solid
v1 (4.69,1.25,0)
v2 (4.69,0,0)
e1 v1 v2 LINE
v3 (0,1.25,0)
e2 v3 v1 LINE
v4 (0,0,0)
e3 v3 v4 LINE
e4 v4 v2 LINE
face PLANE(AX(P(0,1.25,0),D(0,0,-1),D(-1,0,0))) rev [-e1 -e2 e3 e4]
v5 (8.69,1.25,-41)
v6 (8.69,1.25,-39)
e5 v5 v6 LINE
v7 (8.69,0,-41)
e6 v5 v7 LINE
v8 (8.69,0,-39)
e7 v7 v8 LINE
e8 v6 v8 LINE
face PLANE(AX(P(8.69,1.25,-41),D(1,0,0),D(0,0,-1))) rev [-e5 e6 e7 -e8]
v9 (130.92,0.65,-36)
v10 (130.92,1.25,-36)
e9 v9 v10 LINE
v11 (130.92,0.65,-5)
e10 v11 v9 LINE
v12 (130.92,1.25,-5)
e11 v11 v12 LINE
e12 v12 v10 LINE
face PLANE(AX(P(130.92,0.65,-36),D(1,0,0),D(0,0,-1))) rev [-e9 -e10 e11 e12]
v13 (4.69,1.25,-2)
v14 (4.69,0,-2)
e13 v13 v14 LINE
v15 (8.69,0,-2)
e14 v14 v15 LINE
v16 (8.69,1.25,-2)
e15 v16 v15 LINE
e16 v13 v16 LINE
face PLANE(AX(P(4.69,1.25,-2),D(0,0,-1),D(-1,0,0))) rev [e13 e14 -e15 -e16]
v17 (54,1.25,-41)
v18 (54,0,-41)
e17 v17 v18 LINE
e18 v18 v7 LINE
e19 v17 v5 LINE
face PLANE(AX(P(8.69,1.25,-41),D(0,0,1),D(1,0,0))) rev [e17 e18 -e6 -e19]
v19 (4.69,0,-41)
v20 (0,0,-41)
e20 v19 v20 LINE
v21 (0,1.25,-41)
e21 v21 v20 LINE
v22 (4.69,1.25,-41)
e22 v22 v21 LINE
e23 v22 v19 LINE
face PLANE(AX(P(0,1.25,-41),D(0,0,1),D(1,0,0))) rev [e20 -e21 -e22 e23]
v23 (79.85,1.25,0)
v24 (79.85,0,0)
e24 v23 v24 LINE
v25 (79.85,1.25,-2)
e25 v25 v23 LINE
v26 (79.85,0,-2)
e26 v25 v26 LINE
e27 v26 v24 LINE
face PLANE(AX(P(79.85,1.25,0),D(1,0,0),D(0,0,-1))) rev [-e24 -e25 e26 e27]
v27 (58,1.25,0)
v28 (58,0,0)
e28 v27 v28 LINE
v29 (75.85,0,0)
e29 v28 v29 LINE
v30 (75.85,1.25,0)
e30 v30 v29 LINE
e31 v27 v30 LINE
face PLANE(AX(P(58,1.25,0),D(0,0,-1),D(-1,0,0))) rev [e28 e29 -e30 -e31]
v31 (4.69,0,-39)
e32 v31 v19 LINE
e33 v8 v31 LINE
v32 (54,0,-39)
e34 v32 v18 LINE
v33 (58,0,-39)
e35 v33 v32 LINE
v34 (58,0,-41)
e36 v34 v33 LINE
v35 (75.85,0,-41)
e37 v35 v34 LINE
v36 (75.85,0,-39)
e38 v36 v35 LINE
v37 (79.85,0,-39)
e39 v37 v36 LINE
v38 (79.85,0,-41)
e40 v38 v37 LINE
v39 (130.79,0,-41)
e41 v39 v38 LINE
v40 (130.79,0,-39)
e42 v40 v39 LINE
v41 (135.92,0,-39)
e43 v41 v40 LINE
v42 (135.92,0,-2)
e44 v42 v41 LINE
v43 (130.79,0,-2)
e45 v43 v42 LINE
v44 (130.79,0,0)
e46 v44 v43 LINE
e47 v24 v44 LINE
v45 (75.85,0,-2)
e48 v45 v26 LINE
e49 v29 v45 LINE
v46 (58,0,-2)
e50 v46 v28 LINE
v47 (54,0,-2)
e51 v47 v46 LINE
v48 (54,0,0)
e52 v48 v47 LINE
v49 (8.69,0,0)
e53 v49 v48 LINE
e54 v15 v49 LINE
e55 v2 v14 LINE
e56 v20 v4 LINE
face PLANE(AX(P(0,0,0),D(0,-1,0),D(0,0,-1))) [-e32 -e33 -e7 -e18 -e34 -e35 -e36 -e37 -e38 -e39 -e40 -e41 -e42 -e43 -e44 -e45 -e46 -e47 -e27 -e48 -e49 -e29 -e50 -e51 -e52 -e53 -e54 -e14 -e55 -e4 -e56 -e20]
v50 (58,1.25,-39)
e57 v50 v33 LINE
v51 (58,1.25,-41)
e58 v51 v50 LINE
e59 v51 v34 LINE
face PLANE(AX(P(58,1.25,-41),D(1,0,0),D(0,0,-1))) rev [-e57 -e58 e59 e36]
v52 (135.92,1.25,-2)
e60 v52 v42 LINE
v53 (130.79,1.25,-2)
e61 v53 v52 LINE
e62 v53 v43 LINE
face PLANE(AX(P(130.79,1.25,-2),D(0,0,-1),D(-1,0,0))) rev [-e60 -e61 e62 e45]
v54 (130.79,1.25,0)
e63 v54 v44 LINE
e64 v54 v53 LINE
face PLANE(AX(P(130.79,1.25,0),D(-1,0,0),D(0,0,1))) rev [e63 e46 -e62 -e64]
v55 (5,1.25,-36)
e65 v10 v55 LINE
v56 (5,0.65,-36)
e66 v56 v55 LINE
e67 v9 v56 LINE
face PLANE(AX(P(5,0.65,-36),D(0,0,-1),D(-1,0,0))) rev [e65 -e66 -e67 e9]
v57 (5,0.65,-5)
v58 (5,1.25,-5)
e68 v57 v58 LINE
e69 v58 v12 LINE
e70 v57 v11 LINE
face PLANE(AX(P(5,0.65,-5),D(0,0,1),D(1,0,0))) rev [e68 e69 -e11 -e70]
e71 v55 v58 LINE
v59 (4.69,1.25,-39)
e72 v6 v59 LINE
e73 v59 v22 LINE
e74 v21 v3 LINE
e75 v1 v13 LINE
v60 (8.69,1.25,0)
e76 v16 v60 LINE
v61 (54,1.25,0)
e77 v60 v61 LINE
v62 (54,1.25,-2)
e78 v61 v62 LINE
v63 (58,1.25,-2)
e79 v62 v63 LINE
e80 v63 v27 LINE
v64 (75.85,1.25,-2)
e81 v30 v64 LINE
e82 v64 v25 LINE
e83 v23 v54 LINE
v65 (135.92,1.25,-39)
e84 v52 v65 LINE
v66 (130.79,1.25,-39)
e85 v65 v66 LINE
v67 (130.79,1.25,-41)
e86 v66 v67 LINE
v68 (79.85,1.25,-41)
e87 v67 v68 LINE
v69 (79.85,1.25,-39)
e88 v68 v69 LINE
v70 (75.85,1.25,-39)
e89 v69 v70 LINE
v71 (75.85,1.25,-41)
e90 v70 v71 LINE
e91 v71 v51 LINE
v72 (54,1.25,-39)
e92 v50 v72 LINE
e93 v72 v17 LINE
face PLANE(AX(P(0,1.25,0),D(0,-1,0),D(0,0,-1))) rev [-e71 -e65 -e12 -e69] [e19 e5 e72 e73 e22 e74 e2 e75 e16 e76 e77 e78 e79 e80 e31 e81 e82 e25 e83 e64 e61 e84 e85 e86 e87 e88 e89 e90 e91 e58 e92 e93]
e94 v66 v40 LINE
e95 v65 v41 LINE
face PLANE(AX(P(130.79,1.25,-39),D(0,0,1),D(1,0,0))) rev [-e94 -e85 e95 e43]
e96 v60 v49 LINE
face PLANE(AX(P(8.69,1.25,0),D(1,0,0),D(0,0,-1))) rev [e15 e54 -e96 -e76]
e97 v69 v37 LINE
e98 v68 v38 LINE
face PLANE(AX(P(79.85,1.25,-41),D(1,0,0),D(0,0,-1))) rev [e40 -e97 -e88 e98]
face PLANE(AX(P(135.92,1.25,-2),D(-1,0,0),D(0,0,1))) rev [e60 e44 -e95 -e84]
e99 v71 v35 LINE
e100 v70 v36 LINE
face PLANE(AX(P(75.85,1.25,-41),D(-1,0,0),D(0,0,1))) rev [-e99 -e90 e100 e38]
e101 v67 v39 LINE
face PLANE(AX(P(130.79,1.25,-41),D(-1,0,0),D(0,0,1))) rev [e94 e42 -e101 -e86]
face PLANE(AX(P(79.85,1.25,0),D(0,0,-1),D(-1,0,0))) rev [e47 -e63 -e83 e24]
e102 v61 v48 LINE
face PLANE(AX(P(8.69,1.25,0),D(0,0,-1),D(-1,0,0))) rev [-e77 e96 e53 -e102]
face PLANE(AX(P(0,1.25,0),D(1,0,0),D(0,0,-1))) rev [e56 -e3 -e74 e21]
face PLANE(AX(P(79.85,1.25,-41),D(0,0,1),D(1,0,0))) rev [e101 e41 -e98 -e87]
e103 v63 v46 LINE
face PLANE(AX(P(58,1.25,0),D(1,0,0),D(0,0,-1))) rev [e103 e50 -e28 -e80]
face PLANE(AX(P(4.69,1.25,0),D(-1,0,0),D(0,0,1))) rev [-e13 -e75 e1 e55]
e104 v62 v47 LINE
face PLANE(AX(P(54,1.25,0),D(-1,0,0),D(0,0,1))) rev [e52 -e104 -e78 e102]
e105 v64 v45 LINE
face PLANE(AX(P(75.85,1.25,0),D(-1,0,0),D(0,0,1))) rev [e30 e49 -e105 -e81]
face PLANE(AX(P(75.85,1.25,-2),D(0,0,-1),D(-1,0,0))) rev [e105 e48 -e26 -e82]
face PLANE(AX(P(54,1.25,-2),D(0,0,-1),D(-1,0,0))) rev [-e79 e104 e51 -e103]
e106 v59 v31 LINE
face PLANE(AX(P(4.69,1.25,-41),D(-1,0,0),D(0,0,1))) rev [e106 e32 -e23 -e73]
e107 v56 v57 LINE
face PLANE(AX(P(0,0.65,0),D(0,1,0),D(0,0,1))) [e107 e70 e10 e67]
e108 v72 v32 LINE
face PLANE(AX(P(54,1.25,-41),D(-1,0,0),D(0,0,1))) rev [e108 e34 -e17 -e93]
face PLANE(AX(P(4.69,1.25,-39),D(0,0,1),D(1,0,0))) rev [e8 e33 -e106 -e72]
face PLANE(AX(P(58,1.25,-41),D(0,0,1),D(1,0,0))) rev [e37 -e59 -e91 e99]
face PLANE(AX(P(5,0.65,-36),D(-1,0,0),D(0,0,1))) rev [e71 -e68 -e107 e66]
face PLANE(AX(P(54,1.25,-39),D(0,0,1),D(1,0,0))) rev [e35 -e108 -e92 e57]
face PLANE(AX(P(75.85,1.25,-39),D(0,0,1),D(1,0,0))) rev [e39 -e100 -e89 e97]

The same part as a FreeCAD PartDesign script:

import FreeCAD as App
import Part
import Sketcher

doc = App.newDocument("Part")
body = doc.addObject("PartDesign::Body", "Body")

sketch1 = body.newObject("Sketcher::SketchObject", "Sketch")
sketch1.AttachmentSupport = (doc.getObject("XZ_Plane"), [""])
sketch1.MapMode = "FlatFace"
sketch1.addGeometry([
    Part.LineSegment(App.Vector(8.7, 0, 0), App.Vector(54, 0, 0)),
    Part.LineSegment(App.Vector(54, 0, 0), App.Vector(54, -2, 0)),
    Part.LineSegment(App.Vector(54, -2, 0), App.Vector(58, -2, 0)),
    Part.LineSegment(App.Vector(58, -2, 0), App.Vector(58, 0, 0)),
    Part.LineSegment(App.Vector(58, 0, 0), App.Vector(75.8, 0, 0)),
    Part.LineSegment(App.Vector(75.8, 0, 0), App.Vector(75.8, -2, 0)),
    Part.LineSegment(App.Vector(75.8, -2, 0), App.Vector(79.8, -2, 0)),
    Part.LineSegment(App.Vector(79.8, -2, 0), App.Vector(79.8, 0, 0)),
    Part.LineSegment(App.Vector(79.8, 0, 0), App.Vector(130.8, 0, 0)),
    Part.LineSegment(App.Vector(130.8, 0, 0), App.Vector(130.8, -2, 0)),
    Part.LineSegment(App.Vector(130.8, -2, 0), App.Vector(135.9, -2, 0)),
    Part.LineSegment(App.Vector(135.9, -2, 0), App.Vector(135.9, -39, 0)),
    Part.LineSegment(App.Vector(135.9, -39, 0), App.Vector(130.8, -39, 0)),
    Part.LineSegment(App.Vector(130.8, -39, 0), App.Vector(130.8, -41, 0)),
    Part.LineSegment(App.Vector(130.8, -41, 0), App.Vector(79.8, -41, 0)),
    Part.LineSegment(App.Vector(79.8, -41, 0), App.Vector(79.8, -39, 0)),
    Part.LineSegment(App.Vector(79.8, -39, 0), App.Vector(75.8, -39, 0)),
    Part.LineSegment(App.Vector(75.8, -39, 0), App.Vector(75.8, -41, 0)),
    Part.LineSegment(App.Vector(75.8, -41, 0), App.Vector(58, -41, 0)),
    Part.LineSegment(App.Vector(58, -41, 0), App.Vector(58, -39, 0)),
    Part.LineSegment(App.Vector(58, -39, 0), App.Vector(54, -39, 0)),
    Part.LineSegment(App.Vector(54, -39, 0), App.Vector(54, -41, 0)),
    Part.LineSegment(App.Vector(54, -41, 0), App.Vector(8.7, -41, 0)),
    Part.LineSegment(App.Vector(8.7, -41, 0), App.Vector(8.7, -39, 0)),
    Part.LineSegment(App.Vector(8.7, -39, 0), App.Vector(4.7, -39, 0)),
    Part.LineSegment(App.Vector(4.7, -39, 0), App.Vector(4.7, -41, 0)),
    Part.LineSegment(App.Vector(4.7, -41, 0), App.Vector(0, -41, 0)),
    Part.LineSegment(App.Vector(0, -41, 0), App.Vector(0, 0, 0)),
    Part.LineSegment(App.Vector(0, 0, 0), App.Vector(4.7, 0, 0)),
    Part.LineSegment(App.Vector(4.7, 0, 0), App.Vector(4.7, -2, 0)),
    Part.LineSegment(App.Vector(4.7, -2, 0), App.Vector(8.7, -2, 0)),
    Part.LineSegment(App.Vector(8.7, -2, 0), App.Vector(8.7, 0, 0)),
], False)
sketch1.addConstraint([
    Sketcher.Constraint("Coincident", 0, 2, 1, 1),
    Sketcher.Constraint("Coincident", 1, 2, 2, 1),
    Sketcher.Constraint("Coincident", 2, 2, 3, 1),
    Sketcher.Constraint("Coincident", 3, 2, 4, 1),
    Sketcher.Constraint("Coincident", 4, 2, 5, 1),
    Sketcher.Constraint("Coincident", 5, 2, 6, 1),
    Sketcher.Constraint("Coincident", 6, 2, 7, 1),
    Sketcher.Constraint("Coincident", 7, 2, 8, 1),
    Sketcher.Constraint("Coincident", 8, 2, 9, 1),
    Sketcher.Constraint("Coincident", 9, 2, 10, 1),
    Sketcher.Constraint("Coincident", 10, 2, 11, 1),
    Sketcher.Constraint("Coincident", 11, 2, 12, 1),
    Sketcher.Constraint("Coincident", 12, 2, 13, 1),
    Sketcher.Constraint("Coincident", 13, 2, 14, 1),
    Sketcher.Constraint("Coincident", 14, 2, 15, 1),
    Sketcher.Constraint("Coincident", 15, 2, 16, 1),
    Sketcher.Constraint("Coincident", 16, 2, 17, 1),
    Sketcher.Constraint("Coincident", 17, 2, 18, 1),
    Sketcher.Constraint("Coincident", 18, 2, 19, 1),
    Sketcher.Constraint("Coincident", 19, 2, 20, 1),
    Sketcher.Constraint("Coincident", 20, 2, 21, 1),
    Sketcher.Constraint("Coincident", 21, 2, 22, 1),
    Sketcher.Constraint("Coincident", 22, 2, 23, 1),
    Sketcher.Constraint("Coincident", 23, 2, 24, 1),
    Sketcher.Constraint("Coincident", 24, 2, 25, 1),
    Sketcher.Constraint("Coincident", 25, 2, 26, 1),
    Sketcher.Constraint("Coincident", 26, 2, 27, 1),
    Sketcher.Constraint("Coincident", 27, 2, 28, 1),
    Sketcher.Constraint("Coincident", 28, 2, 29, 1),
    Sketcher.Constraint("Coincident", 29, 2, 30, 1),
    Sketcher.Constraint("Coincident", 30, 2, 31, 1),
    Sketcher.Constraint("Coincident", 31, 2, 0, 1),
    Sketcher.Constraint("Horizontal", 0),
    Sketcher.Constraint("Vertical", 1),
    Sketcher.Constraint("Horizontal", 2),
    Sketcher.Constraint("Vertical", 3),
    Sketcher.Constraint("Horizontal", 4),
    Sketcher.Constraint("Vertical", 5),
    Sketcher.Constraint("Horizontal", 6),
    Sketcher.Constraint("Vertical", 7),
    Sketcher.Constraint("Horizontal", 8),
    Sketcher.Constraint("Vertical", 9),
    Sketcher.Constraint("Horizontal", 10),
    Sketcher.Constraint("Vertical", 11),
    Sketcher.Constraint("Horizontal", 12),
    Sketcher.Constraint("Vertical", 13),
    Sketcher.Constraint("Horizontal", 14),
    Sketcher.Constraint("Vertical", 15),
    Sketcher.Constraint("Horizontal", 16),
    Sketcher.Constraint("Vertical", 17),
    Sketcher.Constraint("Horizontal", 18),
    Sketcher.Constraint("Vertical", 19),
    Sketcher.Constraint("Horizontal", 20),
    Sketcher.Constraint("Vertical", 21),
    Sketcher.Constraint("Horizontal", 22),
    Sketcher.Constraint("Vertical", 23),
    Sketcher.Constraint("Horizontal", 24),
    Sketcher.Constraint("Vertical", 25),
    Sketcher.Constraint("Horizontal", 26),
    Sketcher.Constraint("Vertical", 27),
    Sketcher.Constraint("Horizontal", 28),
    Sketcher.Constraint("Vertical", 29),
    Sketcher.Constraint("Horizontal", 30),
    Sketcher.Constraint("Vertical", 31),
    Sketcher.Constraint("Coincident", 27, 2, -1, 1),
    Sketcher.Constraint("PointOnObject", 0, 2, -1),
    Sketcher.Constraint("PointOnObject", 3, 2, -1),
    Sketcher.Constraint("PointOnObject", 7, 2, -1),
    Sketcher.Constraint("Horizontal", 2, 2, 5, 2),
    Sketcher.Constraint("Horizontal", 6, 2, 9, 2),
    Sketcher.Constraint("Horizontal", 12, 2, 15, 2),
    Sketcher.Constraint("Horizontal", 14, 2, 17, 2),
    Sketcher.Constraint("Horizontal", 16, 2, 19, 2),
    Sketcher.Constraint("Horizontal", 18, 2, 21, 2),
    Sketcher.Constraint("Horizontal", 20, 2, 23, 2),
    Sketcher.Constraint("Horizontal", 22, 2, 25, 2),
    Sketcher.Constraint("Horizontal", 10, 2, 29, 2),
    Sketcher.Constraint("Vertical", 9, 2, 12, 2),
    Sketcher.Constraint("Vertical", 7, 2, 14, 2),
    Sketcher.Constraint("Vertical", 5, 2, 16, 2),
    Sketcher.Constraint("Vertical", 3, 2, 18, 2),
    Sketcher.Constraint("Vertical", 1, 2, 20, 2),
    Sketcher.Constraint("Vertical", 25, 2, 28, 2),
    Sketcher.Constraint("Vertical", 23, 2, 30, 2),
    Sketcher.Constraint("Equal", 2, 6),
    Sketcher.Constraint("Equal", 20, 24),
    Sketcher.Constraint("Equal", 9, 13),
    Sketcher.Constraint("DistanceX", 2, 1, 2, 2, 4.0),
    Sketcher.Constraint("DistanceY", 1, 2, 1, 1, 2.0),
    Sketcher.Constraint("DistanceY", 11, 2, 11, 1, 37.0),
    Sketcher.Constraint("DistanceX", -1, 1, 0, 2, 54.0),
    Sketcher.Constraint("DistanceX", 0, 1, 0, 2, 45.31),
    Sketcher.Constraint("DistanceX", 4, 1, 4, 2, 17.85),
    Sketcher.Constraint("DistanceX", 8, 1, 8, 2, 50.94),
    Sketcher.Constraint("DistanceX", 10, 1, 10, 2, 5.13),
])
pad1 = body.newObject("PartDesign::Pad", "Pad")
pad1.Profile = sketch1
pad1.Length = 1.25
pad1.Reversed = True

sketch2 = body.newObject("Sketcher::SketchObject", "Sketch001")
sketch2.AttachmentSupport = (doc.getObject("XZ_Plane"), [""])
sketch2.MapMode = "FlatFace"
sketch2.AttachmentOffset = App.Placement(App.Vector(0, 0, -1.25), App.Rotation())
sketch2.addGeometry([
    Part.LineSegment(App.Vector(5, -36, 0), App.Vector(5, -5, 0)),
    Part.LineSegment(App.Vector(5, -5, 0), App.Vector(131, -5, 0)),
    Part.LineSegment(App.Vector(131, -5, 0), App.Vector(131, -36, 0)),
    Part.LineSegment(App.Vector(131, -36, 0), App.Vector(5, -36, 0)),
], False)
sketch2.addConstraint([
    Sketcher.Constraint("Coincident", 0, 2, 1, 1),
    Sketcher.Constraint("Coincident", 1, 2, 2, 1),
    Sketcher.Constraint("Coincident", 2, 2, 3, 1),
    Sketcher.Constraint("Coincident", 3, 2, 0, 1),
    Sketcher.Constraint("Vertical", 0),
    Sketcher.Constraint("Horizontal", 1),
    Sketcher.Constraint("Vertical", 2),
    Sketcher.Constraint("Horizontal", 3),
    Sketcher.Constraint("DistanceY", 0, 1, 0, 2, 31.0),
    Sketcher.Constraint("DistanceX", -1, 1, 0, 2, 5.0),
    Sketcher.Constraint("DistanceY", 0, 2, -1, 1, 5.0),
    Sketcher.Constraint("DistanceX", 1, 1, 1, 2, 125.92),
])
pocket1 = body.newObject("PartDesign::Pocket", "Pocket")
pocket1.Profile = sketch2
pocket1.Length = 0.6
pocket1.Reversed = True

doc.recompute()
